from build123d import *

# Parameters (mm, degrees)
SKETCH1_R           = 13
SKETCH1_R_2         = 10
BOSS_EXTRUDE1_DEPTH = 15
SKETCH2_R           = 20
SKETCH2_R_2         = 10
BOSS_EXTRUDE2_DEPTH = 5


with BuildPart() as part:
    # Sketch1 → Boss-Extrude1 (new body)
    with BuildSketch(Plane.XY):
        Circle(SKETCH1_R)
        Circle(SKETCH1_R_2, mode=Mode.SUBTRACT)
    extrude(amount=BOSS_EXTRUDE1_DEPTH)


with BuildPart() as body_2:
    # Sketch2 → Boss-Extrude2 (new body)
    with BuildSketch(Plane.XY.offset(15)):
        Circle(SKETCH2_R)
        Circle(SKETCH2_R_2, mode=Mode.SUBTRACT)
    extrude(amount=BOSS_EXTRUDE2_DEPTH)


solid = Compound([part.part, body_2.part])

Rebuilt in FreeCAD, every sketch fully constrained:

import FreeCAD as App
import Part
import Sketcher
from FreeCAD import Vector
Q = App.Units.Quantity

doc = App.newDocument("Part")
body = doc.addObject("PartDesign::Body", "Body")

# Sketch on XY plane
sketch1 = doc.addObject("Sketcher::SketchObject", "Sketch")
body.addObject(sketch1)
sketch1.AttachmentSupport = (doc.XY_Plane, [""])
sketch1.MapMode = "FlatFace"
sketch1.addGeometry(Part.Circle(Vector(0, 0, 0), Vector(0, 0, 1), 13), False)
sketch1.addGeometry(Part.Circle(Vector(0, 0, 0), Vector(0, 0, 1), 10), False)
sketch1.addConstraint(Sketcher.Constraint("Coincident", 0, 3, -1, 1))
sketch1.addConstraint(Sketcher.Constraint("Coincident", 1, 3, -1, 1))
sketch1.addConstraint(Sketcher.Constraint("Diameter", 0, Q("26 mm")))
sketch1.addConstraint(Sketcher.Constraint("Diameter", 1, Q("20 mm")))
pad1 = doc.addObject("PartDesign::Pad", "Pad")
body.addObject(pad1)
pad1.Profile = sketch1
pad1.Length = 15
body2 = doc.addObject("PartDesign::Body", "Body001")

# Sketch on XY plane
sketch2 = doc.addObject("Sketcher::SketchObject", "Sketch001")
body2.addObject(sketch2)
sketch2.AttachmentSupport = (doc.getObject("XY_Plane001"), [""])
sketch2.MapMode = "FlatFace"
sketch2.AttachmentOffset = App.Placement(Vector(0, 0, 15), App.Rotation())
sketch2.addGeometry(Part.Circle(Vector(0, 0, 0), Vector(0, 0, 1), 20), False)
sketch2.addGeometry(Part.Circle(Vector(0, 0, 0), Vector(0, 0, 1), 10), False)
sketch2.addConstraint(Sketcher.Constraint("Coincident", 0, 3, -1, 1))
sketch2.addConstraint(Sketcher.Constraint("Coincident", 1, 3, -1, 1))
sketch2.addConstraint(Sketcher.Constraint("Diameter", 0, Q("40 mm")))
sketch2.addConstraint(Sketcher.Constraint("Diameter", 1, Q("20 mm")))
pad2 = doc.addObject("PartDesign::Pad", "Pad001")
body2.addObject(pad2)
pad2.Profile = sketch2
pad2.Length = 5

doc.recompute()
